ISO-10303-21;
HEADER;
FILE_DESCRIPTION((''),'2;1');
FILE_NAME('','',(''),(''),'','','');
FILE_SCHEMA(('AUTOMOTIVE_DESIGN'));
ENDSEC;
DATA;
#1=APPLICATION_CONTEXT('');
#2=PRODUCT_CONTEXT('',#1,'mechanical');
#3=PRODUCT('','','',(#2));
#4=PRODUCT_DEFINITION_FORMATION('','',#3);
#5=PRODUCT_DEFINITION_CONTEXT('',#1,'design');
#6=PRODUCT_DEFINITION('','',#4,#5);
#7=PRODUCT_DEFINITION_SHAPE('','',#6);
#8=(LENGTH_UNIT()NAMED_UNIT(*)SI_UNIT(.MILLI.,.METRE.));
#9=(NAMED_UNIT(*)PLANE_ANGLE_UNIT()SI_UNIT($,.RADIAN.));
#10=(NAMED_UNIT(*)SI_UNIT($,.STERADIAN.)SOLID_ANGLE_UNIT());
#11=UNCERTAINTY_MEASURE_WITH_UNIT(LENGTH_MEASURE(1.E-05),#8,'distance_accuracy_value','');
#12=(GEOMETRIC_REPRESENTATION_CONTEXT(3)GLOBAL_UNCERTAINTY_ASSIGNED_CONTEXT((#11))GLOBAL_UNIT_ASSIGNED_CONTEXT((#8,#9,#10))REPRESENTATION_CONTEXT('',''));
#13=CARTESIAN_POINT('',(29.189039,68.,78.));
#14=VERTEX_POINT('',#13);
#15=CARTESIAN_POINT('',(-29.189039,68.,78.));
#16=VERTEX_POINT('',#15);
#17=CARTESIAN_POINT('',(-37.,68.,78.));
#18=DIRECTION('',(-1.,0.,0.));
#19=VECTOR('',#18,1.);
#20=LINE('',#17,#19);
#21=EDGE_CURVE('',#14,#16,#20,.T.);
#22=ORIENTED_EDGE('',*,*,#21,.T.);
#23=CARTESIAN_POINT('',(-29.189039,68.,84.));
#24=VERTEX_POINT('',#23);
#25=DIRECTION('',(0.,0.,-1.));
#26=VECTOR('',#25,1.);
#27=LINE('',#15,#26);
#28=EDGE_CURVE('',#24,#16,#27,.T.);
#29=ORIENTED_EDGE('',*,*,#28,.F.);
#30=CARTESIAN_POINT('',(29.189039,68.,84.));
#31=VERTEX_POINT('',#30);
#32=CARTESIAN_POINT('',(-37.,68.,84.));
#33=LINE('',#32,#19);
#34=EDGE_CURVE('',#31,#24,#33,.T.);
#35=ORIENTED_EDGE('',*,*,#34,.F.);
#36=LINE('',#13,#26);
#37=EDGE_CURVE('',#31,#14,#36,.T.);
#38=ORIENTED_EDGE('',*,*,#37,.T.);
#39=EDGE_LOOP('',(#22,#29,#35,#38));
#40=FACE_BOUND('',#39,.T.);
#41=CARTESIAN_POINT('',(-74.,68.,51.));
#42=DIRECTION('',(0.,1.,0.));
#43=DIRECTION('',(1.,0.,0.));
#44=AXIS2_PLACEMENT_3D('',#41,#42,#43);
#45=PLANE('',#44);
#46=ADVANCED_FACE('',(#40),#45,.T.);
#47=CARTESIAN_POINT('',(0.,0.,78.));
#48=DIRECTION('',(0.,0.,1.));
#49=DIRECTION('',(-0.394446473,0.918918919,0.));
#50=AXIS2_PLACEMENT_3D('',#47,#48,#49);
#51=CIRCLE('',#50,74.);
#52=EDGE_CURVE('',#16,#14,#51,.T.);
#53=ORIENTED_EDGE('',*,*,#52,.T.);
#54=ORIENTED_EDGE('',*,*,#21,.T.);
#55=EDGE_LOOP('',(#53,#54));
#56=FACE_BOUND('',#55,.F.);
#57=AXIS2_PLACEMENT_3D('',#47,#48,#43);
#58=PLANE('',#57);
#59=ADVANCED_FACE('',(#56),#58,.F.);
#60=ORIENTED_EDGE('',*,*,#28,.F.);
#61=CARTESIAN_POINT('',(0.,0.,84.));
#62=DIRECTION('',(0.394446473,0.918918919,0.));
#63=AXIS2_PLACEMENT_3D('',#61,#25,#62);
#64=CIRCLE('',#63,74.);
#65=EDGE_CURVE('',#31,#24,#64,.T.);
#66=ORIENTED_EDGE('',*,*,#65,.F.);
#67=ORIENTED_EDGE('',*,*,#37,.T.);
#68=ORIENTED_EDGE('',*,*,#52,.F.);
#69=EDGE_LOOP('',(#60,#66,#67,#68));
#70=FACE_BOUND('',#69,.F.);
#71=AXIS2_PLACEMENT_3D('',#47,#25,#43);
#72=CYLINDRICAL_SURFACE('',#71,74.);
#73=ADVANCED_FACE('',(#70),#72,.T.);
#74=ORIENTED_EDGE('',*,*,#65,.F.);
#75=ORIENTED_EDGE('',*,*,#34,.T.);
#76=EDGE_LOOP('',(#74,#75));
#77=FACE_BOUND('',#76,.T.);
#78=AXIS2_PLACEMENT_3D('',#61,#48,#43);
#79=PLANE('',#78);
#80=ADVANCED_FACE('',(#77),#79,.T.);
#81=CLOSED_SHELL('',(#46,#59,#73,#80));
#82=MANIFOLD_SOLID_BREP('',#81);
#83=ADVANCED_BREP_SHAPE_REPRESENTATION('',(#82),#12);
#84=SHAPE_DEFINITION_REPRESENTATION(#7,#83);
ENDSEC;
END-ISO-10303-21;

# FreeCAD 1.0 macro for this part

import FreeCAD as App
import Part
import Sketcher
Q = App.Units.Quantity

doc = App.newDocument("Part")
body = doc.addObject("PartDesign::Body", "Body")

sketch1 = body.newObject("Sketcher::SketchObject", "Sketch")
sketch1.AttachmentSupport = (doc.getObject("XY_Plane"), [""])
sketch1.MapMode = "FlatFace"
sketch1.AttachmentOffset = App.Placement(App.Vector(0, 0, 38), App.Rotation())
sketch1.addGeometry([
    Part.LineSegment(App.Vector(-74, 88, 0), App.Vector(-74, 68, 0)),
    Part.LineSegment(App.Vector(-74, 68, 0), App.Vector(74, 68, 0)),
    Part.LineSegment(App.Vector(74, 68, 0), App.Vector(74, 88, 0)),
    Part.LineSegment(App.Vector(74, 88, 0), App.Vector(-74, 88, 0)),
], False)
sketch1.addConstraint([
    Sketcher.Constraint("Coincident", 0, 2, 1, 1),
    Sketcher.Constraint("Coincident", 1, 2, 2, 1),
    Sketcher.Constraint("Coincident", 2, 2, 3, 1),
    Sketcher.Constraint("Coincident", 3, 2, 0, 1),
    Sketcher.Constraint("Vertical", 0),
    Sketcher.Constraint("Horizontal", 1),
    Sketcher.Constraint("Vertical", 2),
    Sketcher.Constraint("Horizontal", 3),
    Sketcher.Constraint("DistanceX", 1, 1, 1, 2, Q("148 mm")),
    Sketcher.Constraint("DistanceY", 0, 2, 0, 1, Q("20 mm")),
    Sketcher.Constraint("DistanceX", 0, 2, -1, 1, Q("74 mm")),
    Sketcher.Constraint("DistanceY", -1, 1, 0, 2, Q("68 mm")),
])
pad1 = body.newObject("PartDesign::Pad", "Pad")
pad1.Profile = sketch1
pad1.Length = 34
body2 = doc.addObject("PartDesign::Body", "Body001")

sketch2 = body2.newObject("Sketcher::SketchObject", "Sketch001")
sketch2.AttachmentSupport = (doc.getObject("XY_Plane001"), [""])
sketch2.MapMode = "FlatFace"
sketch2.AttachmentOffset = App.Placement(App.Vector(0, 0, 65), App.Rotation())
sketch2.addGeometry(Part.Circle(App.Vector(0, 0, 0), App.Vector(0, 0, 1), 74), False)
sketch2.addConstraint([
    Sketcher.Constraint("Coincident", 0, 3, -1, 1),
    Sketcher.Constraint("Diameter", 0, Q("148 mm")),
])
pad2 = body2.newObject("PartDesign::Pad", "Pad001")
pad2.Profile = sketch2
pad2.Length = 6
doc.recompute()

boolean = body2.newObject("PartDesign::Boolean", "Boolean")
boolean.Type = "Cut"
boolean.addObjects([body])
body3 = doc.addObject("PartDesign::Body", "Body002")
doc.recompute()

body2.Placement = App.Placement(App.Vector(0, 0, 13), App.Rotation(App.Vector(0, 0, 1), 0))
boolean2 = body3.newObject("PartDesign::Boolean", "Boolean001")
boolean2.Type = "Fuse"
boolean2.addObjects([body2])

doc.recompute()
